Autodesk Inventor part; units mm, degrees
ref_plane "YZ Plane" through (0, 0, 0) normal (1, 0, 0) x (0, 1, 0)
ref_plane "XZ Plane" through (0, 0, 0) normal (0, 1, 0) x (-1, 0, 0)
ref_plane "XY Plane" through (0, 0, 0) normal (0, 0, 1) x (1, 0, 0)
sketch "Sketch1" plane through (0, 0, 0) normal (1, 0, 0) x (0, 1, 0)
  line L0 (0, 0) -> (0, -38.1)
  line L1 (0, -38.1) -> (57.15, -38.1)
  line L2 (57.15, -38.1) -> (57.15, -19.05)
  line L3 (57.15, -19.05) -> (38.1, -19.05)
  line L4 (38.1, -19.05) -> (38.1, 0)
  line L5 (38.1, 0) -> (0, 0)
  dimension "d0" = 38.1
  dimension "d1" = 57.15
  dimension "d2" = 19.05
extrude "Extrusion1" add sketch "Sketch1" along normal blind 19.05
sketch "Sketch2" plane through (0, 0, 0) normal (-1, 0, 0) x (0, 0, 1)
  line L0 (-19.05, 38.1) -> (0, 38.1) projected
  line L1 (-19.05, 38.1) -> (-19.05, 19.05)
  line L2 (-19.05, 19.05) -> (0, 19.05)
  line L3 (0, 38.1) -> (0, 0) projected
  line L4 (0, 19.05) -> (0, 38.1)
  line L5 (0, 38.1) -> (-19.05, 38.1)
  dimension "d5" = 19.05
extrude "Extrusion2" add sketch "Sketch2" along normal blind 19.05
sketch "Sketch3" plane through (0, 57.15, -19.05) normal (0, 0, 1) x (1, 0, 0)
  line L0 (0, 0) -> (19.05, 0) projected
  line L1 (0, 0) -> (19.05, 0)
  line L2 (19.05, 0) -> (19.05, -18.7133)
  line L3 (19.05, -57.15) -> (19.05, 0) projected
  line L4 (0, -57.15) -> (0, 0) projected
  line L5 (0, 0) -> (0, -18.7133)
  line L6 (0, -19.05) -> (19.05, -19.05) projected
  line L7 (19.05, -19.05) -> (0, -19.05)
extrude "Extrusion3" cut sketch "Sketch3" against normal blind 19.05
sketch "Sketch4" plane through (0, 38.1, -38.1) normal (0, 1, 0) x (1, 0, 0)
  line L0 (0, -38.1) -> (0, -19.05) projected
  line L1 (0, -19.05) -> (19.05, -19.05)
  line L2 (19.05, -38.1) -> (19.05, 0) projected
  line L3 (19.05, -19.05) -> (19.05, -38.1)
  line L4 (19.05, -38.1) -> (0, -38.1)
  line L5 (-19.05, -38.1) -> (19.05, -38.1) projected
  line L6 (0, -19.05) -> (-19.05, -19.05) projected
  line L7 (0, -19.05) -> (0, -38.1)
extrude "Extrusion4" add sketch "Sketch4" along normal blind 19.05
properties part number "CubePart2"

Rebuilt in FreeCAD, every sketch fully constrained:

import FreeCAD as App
import Part
import Sketcher
from FreeCAD import Vector
Q = App.Units.Quantity

doc = App.newDocument("Part")
body = doc.addObject("PartDesign::Body", "Body")

sketch1 = body.newObject("Sketcher::SketchObject", "Sketch")
sketch1.AttachmentSupport = (doc.getObject("YZ_Plane"), [""])
sketch1.MapMode = "FlatFace"
sketch1.addGeometry([
    Part.LineSegment(Vector(38, 0, 0), Vector(0, 0, 0)),
    Part.LineSegment(Vector(0, 0, 0), Vector(0, -38, 0)),
    Part.LineSegment(Vector(0, -38, 0), Vector(57, -38, 0)),
    Part.LineSegment(Vector(57, -38, 0), Vector(57, -19, 0)),
    Part.LineSegment(Vector(57, -19, 0), Vector(38, -19, 0)),
    Part.LineSegment(Vector(38, -19, 0), Vector(38, 0, 0)),
], False)
sketch1.addConstraint([
    Sketcher.Constraint("Coincident", 0, 2, 1, 1),
    Sketcher.Constraint("Coincident", 1, 2, 2, 1),
    Sketcher.Constraint("Coincident", 2, 2, 3, 1),
    Sketcher.Constraint("Coincident", 3, 2, 4, 1),
    Sketcher.Constraint("Coincident", 4, 2, 5, 1),
    Sketcher.Constraint("Coincident", 5, 2, 0, 1),
    Sketcher.Constraint("Horizontal", 0),
    Sketcher.Constraint("Vertical", 1),
    Sketcher.Constraint("Horizontal", 2),
    Sketcher.Constraint("Vertical", 3),
    Sketcher.Constraint("Horizontal", 4),
    Sketcher.Constraint("Vertical", 5),
    Sketcher.Constraint("Coincident", 0, 2, -1, 1),
    Sketcher.Constraint("Equal", 0, 1),
    Sketcher.Constraint("Equal", 4, 3),
    Sketcher.Constraint("Equal", 3, 5),
    Sketcher.Constraint("DistanceX", 0, 2, 0, 1, Q("1.5 in")),
])
pad1 = body.newObject("PartDesign::Pad", "Pad")
pad1.Profile = sketch1
pad1.Length = Q("0.75 in")

sketch2 = body.newObject("Sketcher::SketchObject", "Sketch001")
sketch2.AttachmentSupport = (doc.getObject("YZ_Plane"), [""])
sketch2.MapMode = "FlatFace"
sketch2.addGeometry([
    Part.LineSegment(Vector(38, 0, 0), Vector(38, -19, 0)),
    Part.LineSegment(Vector(38, -19, 0), Vector(19, -19, 0)),
    Part.LineSegment(Vector(19, -19, 0), Vector(19, 0, 0)),
    Part.LineSegment(Vector(19, 0, 0), Vector(38, 0, 0)),
], False)
sketch2.addConstraint([
    Sketcher.Constraint("Coincident", 0, 2, 1, 1),
    Sketcher.Constraint("Coincident", 1, 2, 2, 1),
    Sketcher.Constraint("Coincident", 2, 2, 3, 1),
    Sketcher.Constraint("Coincident", 3, 2, 0, 1),
    Sketcher.Constraint("Vertical", 0),
    Sketcher.Constraint("Horizontal", 1),
    Sketcher.Constraint("Vertical", 2),
    Sketcher.Constraint("Horizontal", 3),
    Sketcher.Constraint("PointOnObject", 2, 2, -1),
    Sketcher.Constraint("Equal", 3, 0),
    Sketcher.Constraint("DistanceX", 1, 2, 1, 1, Q("0.75 in")),
    Sketcher.Constraint("DistanceX", -1, 1, 1, 2, Q("0.75 in")),
])
pad2 = body.newObject("PartDesign::Pad", "Pad001")
pad2.Profile = sketch2
pad2.Length = Q("0.75 in")
pad2.Reversed = True

sketch3 = body.newObject("Sketcher::SketchObject", "Sketch002")
sketch3.AttachmentSupport = (doc.getObject("XY_Plane"), [""])
sketch3.MapMode = "FlatFace"
sketch3.AttachmentOffset = App.Placement(Vector(0, 0, -0.75 * 25.4), App.Rotation())
sketch3.addGeometry([
    Part.LineSegment(Vector(19, 57, 0), Vector(0, 57, 0)),
    Part.LineSegment(Vector(0, 57, 0), Vector(0, 38, 0)),
    Part.LineSegment(Vector(0, 38, 0), Vector(19, 38, 0)),
    Part.LineSegment(Vector(19, 38, 0), Vector(19, 57, 0)),
], False)
sketch3.addConstraint([
    Sketcher.Constraint("Coincident", 0, 2, 1, 1),
    Sketcher.Constraint("Coincident", 1, 2, 2, 1),
    Sketcher.Constraint("Coincident", 2, 2, 3, 1),
    Sketcher.Constraint("Coincident", 3, 2, 0, 1),
    Sketcher.Constraint("Horizontal", 0),
    Sketcher.Constraint("Vertical", 1),
    Sketcher.Constraint("Horizontal", 2),
    Sketcher.Constraint("Vertical", 3),
    Sketcher.Constraint("PointOnObject", 0, 2, -2),
    Sketcher.Constraint("Equal", 2, 1),
    Sketcher.Constraint("DistanceX", 0, 2, 0, 1, Q("0.75 in")),
    Sketcher.Constraint("DistanceY", -1, 1, 1, 2, Q("1.5 in")),
])
pocket1 = body.newObject("PartDesign::Pocket", "Pocket")
pocket1.Profile = sketch3
pocket1.Length = Q("0.75 in")

sketch4 = body.newObject("Sketcher::SketchObject", "Sketch003")
sketch4.AttachmentSupport = (doc.getObject("XZ_Plane"), [""])
sketch4.MapMode = "FlatFace"
sketch4.AttachmentOffset = App.Placement(Vector(0, 0, -1.5 * 25.4), App.Rotation())
sketch4.addGeometry([
    Part.LineSegment(Vector(0, -19, 0), Vector(0, 0, 0)),
    Part.LineSegment(Vector(0, 0, 0), Vector(19, 0, 0)),
    Part.LineSegment(Vector(19, 0, 0), Vector(19, -19, 0)),
    Part.LineSegment(Vector(19, -19, 0), Vector(0, -19, 0)),
], False)
sketch4.addConstraint([
    Sketcher.Constraint("Coincident", 0, 2, 1, 1),
    Sketcher.Constraint("Coincident", 1, 2, 2, 1),
    Sketcher.Constraint("Coincident", 2, 2, 3, 1),
    Sketcher.Constraint("Coincident", 3, 2, 0, 1),
    Sketcher.Constraint("Vertical", 0),
    Sketcher.Constraint("Horizontal", 1),
    Sketcher.Constraint("Vertical", 2),
    Sketcher.Constraint("Horizontal", 3),
    Sketcher.Constraint("Coincident", 0, 2, -1, 1),
    Sketcher.Constraint("Equal", 3, 0),
    Sketcher.Constraint("DistanceX", 1, 1, 1, 2, Q("0.75 in")),
])
pad3 = body.newObject("PartDesign::Pad", "Pad002")
pad3.Profile = sketch4
pad3.Length = Q("0.75 in")
pad3.Reversed = True

doc.recompute()
